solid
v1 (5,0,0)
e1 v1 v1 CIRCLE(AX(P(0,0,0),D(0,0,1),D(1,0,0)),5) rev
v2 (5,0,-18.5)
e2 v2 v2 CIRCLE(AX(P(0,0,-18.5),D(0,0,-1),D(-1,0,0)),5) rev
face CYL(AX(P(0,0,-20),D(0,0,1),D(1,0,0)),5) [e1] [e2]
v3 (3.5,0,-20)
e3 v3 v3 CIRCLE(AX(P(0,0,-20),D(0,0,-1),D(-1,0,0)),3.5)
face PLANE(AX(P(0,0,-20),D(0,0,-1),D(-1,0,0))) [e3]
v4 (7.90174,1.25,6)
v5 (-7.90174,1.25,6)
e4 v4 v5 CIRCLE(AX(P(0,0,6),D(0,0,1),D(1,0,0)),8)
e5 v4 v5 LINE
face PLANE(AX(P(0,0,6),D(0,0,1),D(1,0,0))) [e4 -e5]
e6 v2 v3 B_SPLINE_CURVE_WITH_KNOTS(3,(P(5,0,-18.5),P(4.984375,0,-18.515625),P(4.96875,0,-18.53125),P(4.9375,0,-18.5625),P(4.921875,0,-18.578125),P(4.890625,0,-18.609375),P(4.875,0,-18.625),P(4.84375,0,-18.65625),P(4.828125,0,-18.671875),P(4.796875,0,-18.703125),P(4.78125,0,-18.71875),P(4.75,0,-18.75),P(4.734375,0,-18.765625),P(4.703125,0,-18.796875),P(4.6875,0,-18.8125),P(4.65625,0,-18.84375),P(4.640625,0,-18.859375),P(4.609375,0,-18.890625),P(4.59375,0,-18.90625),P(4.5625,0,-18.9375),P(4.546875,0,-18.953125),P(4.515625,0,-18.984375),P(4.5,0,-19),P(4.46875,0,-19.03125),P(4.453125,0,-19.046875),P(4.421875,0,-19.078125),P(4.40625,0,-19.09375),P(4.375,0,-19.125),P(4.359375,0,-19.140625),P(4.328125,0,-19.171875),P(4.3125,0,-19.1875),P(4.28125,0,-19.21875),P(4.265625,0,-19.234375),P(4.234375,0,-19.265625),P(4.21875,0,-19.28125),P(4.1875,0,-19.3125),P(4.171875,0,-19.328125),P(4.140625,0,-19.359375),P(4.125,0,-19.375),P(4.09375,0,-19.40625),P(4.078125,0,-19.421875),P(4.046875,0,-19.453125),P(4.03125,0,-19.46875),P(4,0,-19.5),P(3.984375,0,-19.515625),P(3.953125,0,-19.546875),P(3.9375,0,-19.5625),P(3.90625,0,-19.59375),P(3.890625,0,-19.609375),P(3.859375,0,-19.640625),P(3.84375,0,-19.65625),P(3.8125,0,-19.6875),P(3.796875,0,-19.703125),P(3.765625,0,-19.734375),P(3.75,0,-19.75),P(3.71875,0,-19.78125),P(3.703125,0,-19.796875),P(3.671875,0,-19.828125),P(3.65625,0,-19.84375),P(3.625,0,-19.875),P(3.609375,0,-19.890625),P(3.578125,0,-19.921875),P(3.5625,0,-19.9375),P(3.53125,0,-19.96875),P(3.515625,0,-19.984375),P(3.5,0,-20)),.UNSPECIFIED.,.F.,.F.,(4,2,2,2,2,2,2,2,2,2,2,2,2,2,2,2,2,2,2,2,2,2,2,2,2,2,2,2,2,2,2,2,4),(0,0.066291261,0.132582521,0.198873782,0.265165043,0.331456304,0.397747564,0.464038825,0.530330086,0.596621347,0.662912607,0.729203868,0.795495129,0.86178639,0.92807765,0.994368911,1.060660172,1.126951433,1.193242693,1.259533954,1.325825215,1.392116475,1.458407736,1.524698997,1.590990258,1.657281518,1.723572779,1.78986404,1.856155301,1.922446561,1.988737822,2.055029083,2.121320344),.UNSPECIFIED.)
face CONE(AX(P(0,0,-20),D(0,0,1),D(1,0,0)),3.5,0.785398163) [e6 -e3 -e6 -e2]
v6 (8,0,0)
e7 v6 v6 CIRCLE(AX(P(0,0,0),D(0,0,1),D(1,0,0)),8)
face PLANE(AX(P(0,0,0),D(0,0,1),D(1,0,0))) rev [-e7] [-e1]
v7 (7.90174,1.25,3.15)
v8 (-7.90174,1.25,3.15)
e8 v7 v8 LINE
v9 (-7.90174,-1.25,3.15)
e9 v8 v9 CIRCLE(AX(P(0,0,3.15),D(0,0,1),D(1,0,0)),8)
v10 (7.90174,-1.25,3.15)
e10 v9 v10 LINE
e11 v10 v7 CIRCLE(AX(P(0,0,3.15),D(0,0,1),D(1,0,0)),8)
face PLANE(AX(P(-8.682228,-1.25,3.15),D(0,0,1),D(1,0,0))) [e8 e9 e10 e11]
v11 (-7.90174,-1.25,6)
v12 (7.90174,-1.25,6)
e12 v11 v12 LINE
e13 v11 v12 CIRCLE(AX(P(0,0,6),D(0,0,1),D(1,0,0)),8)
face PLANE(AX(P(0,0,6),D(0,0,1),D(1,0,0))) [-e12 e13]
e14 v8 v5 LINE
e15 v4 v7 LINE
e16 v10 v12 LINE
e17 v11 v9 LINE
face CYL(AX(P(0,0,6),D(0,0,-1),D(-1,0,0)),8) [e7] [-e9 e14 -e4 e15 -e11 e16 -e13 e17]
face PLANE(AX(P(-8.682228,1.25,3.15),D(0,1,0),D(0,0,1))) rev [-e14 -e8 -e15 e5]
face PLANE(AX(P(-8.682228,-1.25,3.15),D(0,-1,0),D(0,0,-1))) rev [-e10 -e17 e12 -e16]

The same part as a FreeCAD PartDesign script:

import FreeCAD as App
import Part
import Sketcher

V = App.Vector


def edges_at(feature, points):
    """Names of the edges that pass closest to the given points."""
    edges = feature.Shape.Edges
    near = lambda p: min(range(len(edges)), key=lambda i: edges[i].distToShape(Part.Vertex(*p))[0])
    return sorted({f"Edge{near(p) + 1}" for p in points})


def add_polygon(sketch, points):
    """Adds a closed chain of lines whose ends are joined by coincident constraints."""
    first, n = sketch.GeometryCount, len(points)
    for a, b in zip(points, points[1:] + points[:1]):
        sketch.addGeometry(Part.LineSegment(App.Vector(*a, 0), App.Vector(*b, 0)), False)
    for i in range(n):
        sketch.addConstraint(Sketcher.Constraint("Coincident", first + i, 2, first + (i + 1) % n, 1))

doc = App.newDocument("Part")
body = doc.addObject("PartDesign::Body", "Body")

# Sketch on XY plane
sketch1 = body.newObject("Sketcher::SketchObject", "Sketch")
sketch1.AttachmentSupport = (doc.getObject("XY_Plane"), [""])
sketch1.MapMode = "FlatFace"
sketch1.addGeometry(Part.Circle(V(0, 0, 0), V(0, 0, 1), 8), False)
sketch1.addConstraint([
    Sketcher.Constraint("Coincident", 0, 3, -1, 1),
    Sketcher.Constraint("Diameter", 0, 16.0),
])
pad1 = body.newObject("PartDesign::Pad", "Pad")
pad1.Profile = sketch1
pad1.Length = 6

# Sketch on XY plane
sketch2 = body.newObject("Sketcher::SketchObject", "Sketch001")
sketch2.AttachmentSupport = (doc.getObject("XY_Plane"), [""])
sketch2.MapMode = "FlatFace"
sketch2.addGeometry(Part.Circle(V(0, 0, 0), V(0, 0, 1), 5), False)
sketch2.addConstraint([
    Sketcher.Constraint("Coincident", 0, 3, -1, 1),
    Sketcher.Constraint("Diameter", 0, 10.0),
])
pad2 = body.newObject("PartDesign::Pad", "Pad001")
pad2.Profile = sketch2
pad2.Length = 20
pad2.Reversed = True

# Sketch on XY plane
sketch3 = body.newObject("Sketcher::SketchObject", "Sketch002")
sketch3.AttachmentSupport = (doc.getObject("XY_Plane"), [""])
sketch3.MapMode = "FlatFace"
sketch3.AttachmentOffset = App.Placement(V(0, 0, 6), App.Rotation())
add_polygon(sketch3, [(-8.7, 1.2), (-8.7, -1.2), (8.6, -1.2), (8.6, 1.2)])  # lines 0-3
sketch3.addConstraint([
    Sketcher.Constraint("Vertical", 0),
    Sketcher.Constraint("Horizontal", 1),
    Sketcher.Constraint("Vertical", 2),
    Sketcher.Constraint("Horizontal", 3),
    Sketcher.Constraint("DistanceY", 0, 2, 0, 1, 2.5),
    Sketcher.Constraint("DistanceY", 0, 2, -1, 1, 1.25),
    Sketcher.Constraint("DistanceX", 1, 1, 1, 2, 17.254902),
    Sketcher.Constraint("DistanceX", 0, 2, -1, 1, 8.682228),
])
pocket1 = body.newObject("PartDesign::Pocket", "Pocket")
pocket1.Profile = sketch3
pocket1.Length = 2.85
doc.recompute()

chamfer = body.newObject("PartDesign::Chamfer", "Chamfer")
chamfer.Base = (pocket1, edges_at(pocket1, [(-5, 0, -20)]))
chamfer.Size = 1.5

doc.recompute()
